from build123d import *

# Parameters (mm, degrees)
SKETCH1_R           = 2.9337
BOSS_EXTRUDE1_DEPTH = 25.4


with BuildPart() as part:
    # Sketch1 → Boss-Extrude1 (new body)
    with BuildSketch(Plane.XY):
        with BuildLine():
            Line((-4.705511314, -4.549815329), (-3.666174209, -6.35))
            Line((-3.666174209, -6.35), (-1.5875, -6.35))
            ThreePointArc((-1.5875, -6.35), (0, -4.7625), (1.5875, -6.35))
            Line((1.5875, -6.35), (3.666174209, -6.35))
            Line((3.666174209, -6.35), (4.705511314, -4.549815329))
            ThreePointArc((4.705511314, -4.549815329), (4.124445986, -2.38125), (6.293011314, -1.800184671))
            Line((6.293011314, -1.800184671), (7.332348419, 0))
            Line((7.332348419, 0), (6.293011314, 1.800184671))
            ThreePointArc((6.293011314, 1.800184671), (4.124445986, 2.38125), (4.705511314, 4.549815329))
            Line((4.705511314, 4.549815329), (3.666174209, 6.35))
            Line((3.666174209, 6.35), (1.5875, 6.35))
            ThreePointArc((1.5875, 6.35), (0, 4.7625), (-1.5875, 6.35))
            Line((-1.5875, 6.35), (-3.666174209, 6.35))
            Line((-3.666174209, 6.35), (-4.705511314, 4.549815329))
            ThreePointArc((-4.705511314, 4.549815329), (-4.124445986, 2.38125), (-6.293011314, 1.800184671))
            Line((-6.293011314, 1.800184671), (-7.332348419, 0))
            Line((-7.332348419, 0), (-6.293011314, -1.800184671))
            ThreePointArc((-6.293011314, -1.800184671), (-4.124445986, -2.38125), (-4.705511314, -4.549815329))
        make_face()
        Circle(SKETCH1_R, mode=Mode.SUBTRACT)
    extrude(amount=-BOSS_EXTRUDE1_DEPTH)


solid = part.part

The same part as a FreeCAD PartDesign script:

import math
import FreeCAD as App
import Part
import Sketcher
from FreeCAD import Vector
Q = App.Units.Quantity

doc = App.newDocument("Part")
body = doc.addObject("PartDesign::Body", "Body")

# Sketch on XY plane
sketch1 = body.newObject("Sketcher::SketchObject", "Sketch")
sketch1.AttachmentSupport = (doc.getObject("XY_Plane"), [""])
sketch1.MapMode = "FlatFace"
sketch1.addGeometry([
    Part.LineSegment(Vector(-4.7, -4.5, 0), Vector(-3.7, -6.3, 0)),  # 0
    Part.LineSegment(Vector(-3.7, -6.3, 0), Vector(-1.6, -6.3, 0)),  # 1
    Part.ArcOfCircle(Part.Circle(Vector(0, -6.3, 0), Vector(0, 0, 1), 1.6), math.radians(0), math.radians(180)),  # 2
    Part.LineSegment(Vector(1.6, -6.3, 0), Vector(3.7, -6.3, 0)),  # 3
    Part.LineSegment(Vector(3.7, -6.3, 0), Vector(4.7, -4.5, 0)),  # 4
    Part.ArcOfCircle(Part.Circle(Vector(5.5, -3.2, 0), Vector(0, 0, 1), 1.6), math.radians(60), math.radians(240)),  # 5
    Part.LineSegment(Vector(6.3, -1.8, 0), Vector(7.3, 0, 0)),  # 6
    Part.LineSegment(Vector(7.3, 0, 0), Vector(6.3, 1.8, 0)),  # 7
    Part.ArcOfCircle(Part.Circle(Vector(5.5, 3.2, 0), Vector(0, 0, 1), 1.6), math.radians(120), math.radians(300)),  # 8
    Part.LineSegment(Vector(4.7, 4.5, 0), Vector(3.7, 6.3, 0)),  # 9
    Part.LineSegment(Vector(3.7, 6.3, 0), Vector(1.6, 6.3, 0)),  # 10
    Part.ArcOfCircle(Part.Circle(Vector(0, 6.3, 0), Vector(0, 0, 1), 1.6), math.radians(180), math.radians(360)),  # 11
    Part.LineSegment(Vector(-1.6, 6.3, 0), Vector(-3.7, 6.3, 0)),  # 12
    Part.LineSegment(Vector(-3.7, 6.3, 0), Vector(-4.7, 4.5, 0)),  # 13
    Part.ArcOfCircle(Part.Circle(Vector(-5.5, 3.2, 0), Vector(0, 0, 1), 1.6), math.radians(-120), math.radians(60)),  # 14
    Part.LineSegment(Vector(-6.3, 1.8, 0), Vector(-7.3, 0, 0)),  # 15
    Part.LineSegment(Vector(-7.3, 0, 0), Vector(-6.3, -1.8, 0)),  # 16
    Part.ArcOfCircle(Part.Circle(Vector(-5.5, -3.2, 0), Vector(0, 0, 1), 1.6), math.radians(-60), math.radians(120)),  # 17
    Part.Circle(Vector(0, 0, 0), Vector(0, 0, 1), 2.9),  # 18
], False)
sketch1.addConstraint([
    Sketcher.Constraint("Coincident", 0, 2, 1, 1),
    Sketcher.Constraint("Coincident", 1, 2, 2, 2),
    Sketcher.Constraint("Coincident", 2, 1, 3, 1),
    Sketcher.Constraint("Coincident", 3, 2, 4, 1),
    Sketcher.Constraint("Coincident", 4, 2, 5, 2),
    Sketcher.Constraint("Coincident", 5, 1, 6, 1),
    Sketcher.Constraint("Coincident", 6, 2, 7, 1),
    Sketcher.Constraint("Coincident", 7, 2, 8, 2),
    Sketcher.Constraint("Coincident", 8, 1, 9, 1),
    Sketcher.Constraint("Coincident", 9, 2, 10, 1),
    Sketcher.Constraint("Coincident", 10, 2, 11, 2),
    Sketcher.Constraint("Coincident", 11, 1, 12, 1),
    Sketcher.Constraint("Coincident", 12, 2, 13, 1),
    Sketcher.Constraint("Coincident", 13, 2, 14, 2),
    Sketcher.Constraint("Coincident", 14, 1, 15, 1),
    Sketcher.Constraint("Coincident", 15, 2, 16, 1),
    Sketcher.Constraint("Coincident", 16, 2, 17, 2),
    Sketcher.Constraint("Coincident", 17, 1, 0, 1),
    Sketcher.Constraint("Horizontal", 1),
    Sketcher.Constraint("Horizontal", 3),
    Sketcher.Constraint("Horizontal", 10),
    Sketcher.Constraint("Horizontal", 12),
    Sketcher.Constraint("Coincident", 18, 3, -1, 1),
    Sketcher.Constraint("Equal", 2, 5),
    Sketcher.Constraint("Equal", 5, 8),
    Sketcher.Constraint("Equal", 8, 11),
    Sketcher.Constraint("Equal", 11, 14),
    Sketcher.Constraint("Equal", 14, 17),
    Sketcher.Constraint("Symmetric", 2, 3, 11, 3, -1, 1),
    Sketcher.Constraint("Symmetric", 5, 3, 14, 3, -1, 1),
    Sketcher.Constraint("Symmetric", 8, 3, 17, 3, -1, 1),
    Sketcher.Constraint("Symmetric", 0, 2, 9, 2, -1, 1),
    Sketcher.Constraint("Symmetric", 3, 2, 12, 2, -1, 1),
    Sketcher.Constraint("Symmetric", 6, 2, 15, 2, -1, 1),
    Sketcher.Constraint("Symmetric", 8, 3, 14, 3, -2),
    Sketcher.Constraint("Symmetric", 1, 2, 2, 1, -2),
    Sketcher.Constraint("PointOnObject", 6, 2, -1),
    Sketcher.Constraint("Parallel", 4, 6),
    Sketcher.Constraint("Parallel", 0, 7),
    Sketcher.Constraint("Parallel", 7, 9),
    Sketcher.Constraint("Parallel", 6, 13),
    Sketcher.Constraint("Parallel", 13, 15),
    Sketcher.Constraint("Parallel", 9, 16),
    Sketcher.Constraint("Horizontal", 2, 3, 0, 2),
    Sketcher.Constraint("Horizontal", 8, 1, 13, 2),
    Sketcher.Constraint("Horizontal", 7, 2, 14, 1),
    Sketcher.Constraint("Equal", 4, 6),
    Sketcher.Constraint("Diameter", 18, Q("0.231 in")),
    Sketcher.Constraint("Angle", 0, Q("-60 deg")),
    Sketcher.Constraint("Radius", 2, Q("0.0625 in")),
    Sketcher.Constraint("DistanceY", 2, 3, 11, 3, Q("0.5 in")),
    Sketcher.Constraint("DistanceY", 5, 3, 8, 3, Q("0.25 in")),
    Sketcher.Constraint("DistanceX", 4, 2, 5, 3, Q("0.03125 in")),
    Sketcher.Constraint("DistanceX", 1, 1, 1, 2, 2.078674),
])
pad1 = body.newObject("PartDesign::Pad", "Pad")
pad1.Profile = sketch1
pad1.Length = Q("1 in")
pad1.Reversed = True

doc.recompute()
